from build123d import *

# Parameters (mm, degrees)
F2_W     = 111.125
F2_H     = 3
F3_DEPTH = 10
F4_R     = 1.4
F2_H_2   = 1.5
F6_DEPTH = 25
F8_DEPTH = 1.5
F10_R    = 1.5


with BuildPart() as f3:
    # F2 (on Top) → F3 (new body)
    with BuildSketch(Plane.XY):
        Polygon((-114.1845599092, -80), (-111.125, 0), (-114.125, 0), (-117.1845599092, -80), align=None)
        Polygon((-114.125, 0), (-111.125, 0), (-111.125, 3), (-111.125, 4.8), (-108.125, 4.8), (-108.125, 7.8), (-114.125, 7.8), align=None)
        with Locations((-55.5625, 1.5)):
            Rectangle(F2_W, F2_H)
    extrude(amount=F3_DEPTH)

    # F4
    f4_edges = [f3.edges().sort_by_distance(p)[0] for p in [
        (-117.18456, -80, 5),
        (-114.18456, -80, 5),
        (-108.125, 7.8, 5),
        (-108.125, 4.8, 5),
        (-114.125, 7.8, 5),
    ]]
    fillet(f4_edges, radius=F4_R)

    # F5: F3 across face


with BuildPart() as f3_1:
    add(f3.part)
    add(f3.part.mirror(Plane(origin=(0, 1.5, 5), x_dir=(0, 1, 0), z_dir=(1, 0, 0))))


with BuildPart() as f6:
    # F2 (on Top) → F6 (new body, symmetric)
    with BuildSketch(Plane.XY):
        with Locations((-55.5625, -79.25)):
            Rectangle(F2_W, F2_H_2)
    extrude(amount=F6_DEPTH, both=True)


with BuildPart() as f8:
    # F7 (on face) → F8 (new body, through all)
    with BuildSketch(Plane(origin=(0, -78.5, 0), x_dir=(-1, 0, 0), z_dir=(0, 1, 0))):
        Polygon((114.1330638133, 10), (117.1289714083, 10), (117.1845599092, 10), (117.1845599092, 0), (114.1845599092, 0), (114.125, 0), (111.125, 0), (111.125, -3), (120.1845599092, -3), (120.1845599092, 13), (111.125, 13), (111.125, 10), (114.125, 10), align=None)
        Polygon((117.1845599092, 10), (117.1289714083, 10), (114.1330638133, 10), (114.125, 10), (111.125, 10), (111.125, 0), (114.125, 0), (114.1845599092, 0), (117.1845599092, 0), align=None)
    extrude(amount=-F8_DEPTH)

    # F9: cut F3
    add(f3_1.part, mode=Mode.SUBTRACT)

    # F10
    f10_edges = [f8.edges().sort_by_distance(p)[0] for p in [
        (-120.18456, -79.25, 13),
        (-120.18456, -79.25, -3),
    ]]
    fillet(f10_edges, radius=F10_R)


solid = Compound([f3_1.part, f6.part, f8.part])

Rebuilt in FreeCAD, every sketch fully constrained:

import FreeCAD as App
import Part
import Sketcher
from FreeCAD import Vector


def edges_at(feature, points):
    """Names of the edges that pass closest to the given points."""
    edges = feature.Shape.Edges
    near = lambda p: min(range(len(edges)), key=lambda i: edges[i].distToShape(Part.Vertex(*p))[0])
    return sorted({f"Edge{near(p) + 1}" for p in points})

doc = App.newDocument("Part")
params = doc.addObject("Spreadsheet::Sheet", "Params")
for row, (alias, value) in enumerate([
    ("sketch1_width", "3 mm"),
    ("sketch1_height", "1.8 mm"),
    ("pad1_length", "10 mm"),
    ("fillet_radius", "1.4 mm"),
    ("sketch2_height", "1.5 mm"),
    ("pad2_length", "50 mm"),
    ("sketch3_height", "16 mm"),
    ("pad3_length", "1.5 mm"),
    ("fillet2_radius", "1.5 mm"),
], start=1):
    params.set(f"A{row}", alias)
    params.set(f"B{row}", "=" + value)
    params.setAlias(f"B{row}", alias)

body = doc.addObject("PartDesign::Body", "Body")

sketch1 = body.newObject("Sketcher::SketchObject", "Sketch")
sketch1.AttachmentSupport = (doc.getObject("XY_Plane"), [""])
sketch1.MapMode = "FlatFace"
sketch1.addGeometry(Part.LineSegment(Vector(-114.2, -80, 0), Vector(-111.1, 0, 0)), False)
sketch1.addGeometry(Part.LineSegment(Vector(-111.1, 0, 0), Vector(0, 0, 0)), False)
sketch1.addGeometry(Part.LineSegment(Vector(0, 0, 0), Vector(0, 3, 0)), False)
sketch1.addGeometry(Part.LineSegment(Vector(0, 3, 0), Vector(-111.1, 3, 0)), False)
sketch1.addGeometry(Part.LineSegment(Vector(-111.1, 3, 0), Vector(-111.1, 4.8, 0)), False)
sketch1.addGeometry(Part.LineSegment(Vector(-111.1, 4.8, 0), Vector(-108.1, 4.8, 0)), False)
sketch1.addGeometry(Part.LineSegment(Vector(-108.1, 4.8, 0), Vector(-108.1, 7.8, 0)), False)
sketch1.addGeometry(Part.LineSegment(Vector(-108.1, 7.8, 0), Vector(-114.1, 7.8, 0)), False)
sketch1.addGeometry(Part.LineSegment(Vector(-114.1, 7.8, 0), Vector(-114.1, 0, 0)), False)
sketch1.addGeometry(Part.LineSegment(Vector(-114.1, 0, 0), Vector(-117.2, -80, 0)), False)
sketch1.addGeometry(Part.LineSegment(Vector(-117.2, -80, 0), Vector(-114.2, -80, 0)), False)
sketch1.addConstraint(Sketcher.Constraint("Coincident", 0, 2, 1, 1))
sketch1.addConstraint(Sketcher.Constraint("Coincident", 1, 2, 2, 1))
sketch1.addConstraint(Sketcher.Constraint("Coincident", 2, 2, 3, 1))
sketch1.addConstraint(Sketcher.Constraint("Coincident", 3, 2, 4, 1))
sketch1.addConstraint(Sketcher.Constraint("Coincident", 4, 2, 5, 1))
sketch1.addConstraint(Sketcher.Constraint("Coincident", 5, 2, 6, 1))
sketch1.addConstraint(Sketcher.Constraint("Coincident", 6, 2, 7, 1))
sketch1.addConstraint(Sketcher.Constraint("Coincident", 7, 2, 8, 1))
sketch1.addConstraint(Sketcher.Constraint("Coincident", 8, 2, 9, 1))
sketch1.addConstraint(Sketcher.Constraint("Coincident", 9, 2, 10, 1))
sketch1.addConstraint(Sketcher.Constraint("Coincident", 10, 2, 0, 1))
sketch1.addConstraint(Sketcher.Constraint("Horizontal", 1))
sketch1.addConstraint(Sketcher.Constraint("Vertical", 2))
sketch1.addConstraint(Sketcher.Constraint("Horizontal", 3))
sketch1.addConstraint(Sketcher.Constraint("Vertical", 4))
sketch1.addConstraint(Sketcher.Constraint("Horizontal", 5))
sketch1.addConstraint(Sketcher.Constraint("Vertical", 6))
sketch1.addConstraint(Sketcher.Constraint("Horizontal", 7))
sketch1.addConstraint(Sketcher.Constraint("Vertical", 8))
sketch1.addConstraint(Sketcher.Constraint("Horizontal", 10))
sketch1.addConstraint(Sketcher.Constraint("Coincident", 1, 2, -1, 1))
sketch1.addConstraint(Sketcher.Constraint("PointOnObject", 8, 2, -1))
sketch1.addConstraint(Sketcher.Constraint("Parallel", 0, 9))
sketch1.addConstraint(Sketcher.Constraint("Vertical", 0, 2, 3, 2))
sketch1.addConstraint(Sketcher.Constraint("Equal", 5, 10))
sketch1.addConstraint(Sketcher.Constraint("Equal", 10, 2))
sketch1.addConstraint(Sketcher.Constraint("Equal", 2, 6))
sketch1.addConstraint(Sketcher.Constraint("DistanceX", 5, 1, 5, 2, 3.0))
sketch1.addConstraint(Sketcher.Constraint("DistanceY", 4, 1, 4, 2, 1.8))
sketch1.addConstraint(Sketcher.Constraint("DistanceY", 9, 2, -1, 1, 80.0))
sketch1.addConstraint(Sketcher.Constraint("DistanceX", 1, 1, 1, 2, 111.125))
sketch1.addConstraint(Sketcher.Constraint("DistanceX", 9, 2, -1, 1, 117.18456))
sketch1.setExpression("Constraints[27]", "Params.sketch1_width")
sketch1.setExpression("Constraints[28]", "Params.sketch1_height")
pad1 = body.newObject("PartDesign::Pad", "Pad")
pad1.Profile = sketch1
pad1.setExpression("Length", "Params.pad1_length")
doc.recompute()

fillet = body.newObject("PartDesign::Fillet", "Fillet")
fillet.Base = (pad1, edges_at(pad1, [
    (-117.185, -80, 5),
    (-114.185, -80, 5),
    (-108.125, 7.8, 5),
    (-108.125, 4.8, 5),
    (-114.125, 7.8, 5),
]))
fillet.setExpression("Radius", "Params.fillet_radius")
body2 = doc.addObject("PartDesign::Body", "Body001")
doc.recompute()

body2.BaseFeature = body
doc.recompute()

mirroring = doc.addObject("Part::Mirroring", "Mirroring")
mirroring.Source = body
mirroring.Base = Vector(0, 1.5, 5)
mirroring.Normal = Vector(1, 0, 0)
body3 = doc.addObject("PartDesign::Body", "Body002")
body3.BaseFeature = mirroring
boolean = body2.newObject("PartDesign::Boolean", "Boolean")
boolean.Type = "Fuse"
boolean.addObjects([body3])
doc.recompute()
body4 = doc.addObject("PartDesign::Body", "Body003")

sketch2 = body4.newObject("Sketcher::SketchObject", "Sketch001")
sketch2.AttachmentSupport = (doc.getObject("XY_Plane003"), [""])
sketch2.MapMode = "FlatFace"
sketch2.addGeometry(Part.LineSegment(Vector(-111.1, -78.5, 0), Vector(-111.1, -80, 0)), False)
sketch2.addGeometry(Part.LineSegment(Vector(-111.1, -80, 0), Vector(0, -80, 0)), False)
sketch2.addGeometry(Part.LineSegment(Vector(0, -80, 0), Vector(0, -78.5, 0)), False)
sketch2.addGeometry(Part.LineSegment(Vector(0, -78.5, 0), Vector(-111.1, -78.5, 0)), False)
sketch2.addConstraint(Sketcher.Constraint("Coincident", 0, 2, 1, 1))
sketch2.addConstraint(Sketcher.Constraint("Coincident", 1, 2, 2, 1))
sketch2.addConstraint(Sketcher.Constraint("Coincident", 2, 2, 3, 1))
sketch2.addConstraint(Sketcher.Constraint("Coincident", 3, 2, 0, 1))
sketch2.addConstraint(Sketcher.Constraint("Vertical", 0))
sketch2.addConstraint(Sketcher.Constraint("Horizontal", 1))
sketch2.addConstraint(Sketcher.Constraint("Vertical", 2))
sketch2.addConstraint(Sketcher.Constraint("Horizontal", 3))
sketch2.addConstraint(Sketcher.Constraint("PointOnObject", 1, 2, -2))
sketch2.addConstraint(Sketcher.Constraint("DistanceY", 0, 2, 0, 1, 1.5))
sketch2.addConstraint(Sketcher.Constraint("DistanceY", 0, 2, -1, 1, 80.0))
sketch2.addConstraint(Sketcher.Constraint("DistanceX", 1, 1, 1, 2, 111.125))
sketch2.setExpression("Constraints[9]", "Params.sketch2_height")
pad2 = body4.newObject("PartDesign::Pad", "Pad001")
pad2.Profile = sketch2
pad2.setExpression("Length", "Params.pad2_length")
pad2.Midplane = True
body5 = doc.addObject("PartDesign::Body", "Body004")

sketch3 = body5.newObject("Sketcher::SketchObject", "Sketch002")
sketch3.AttachmentSupport = (doc.getObject("XZ_Plane004"), [""])
sketch3.MapMode = "FlatFace"
sketch3.AttachmentOffset = App.Placement(Vector(0, 0, 78.5), App.Rotation())
sketch3.addGeometry(Part.LineSegment(Vector(-111, -3, 0), Vector(-120, -3, 0)), False)
sketch3.addGeometry(Part.LineSegment(Vector(-120, -3, 0), Vector(-120, 13, 0)), False)
sketch3.addGeometry(Part.LineSegment(Vector(-120, 13, 0), Vector(-111, 13, 0)), False)
sketch3.addGeometry(Part.LineSegment(Vector(-111, 13, 0), Vector(-111, -3, 0)), False)
sketch3.addConstraint(Sketcher.Constraint("Coincident", 0, 2, 1, 1))
sketch3.addConstraint(Sketcher.Constraint("Coincident", 1, 2, 2, 1))
sketch3.addConstraint(Sketcher.Constraint("Coincident", 2, 2, 3, 1))
sketch3.addConstraint(Sketcher.Constraint("Coincident", 3, 2, 0, 1))
sketch3.addConstraint(Sketcher.Constraint("Horizontal", 0))
sketch3.addConstraint(Sketcher.Constraint("Vertical", 1))
sketch3.addConstraint(Sketcher.Constraint("Horizontal", 2))
sketch3.addConstraint(Sketcher.Constraint("Vertical", 3))
sketch3.addConstraint(Sketcher.Constraint("DistanceY", 1, 1, 1, 2, 16.0))
sketch3.addConstraint(Sketcher.Constraint("DistanceY", 0, 2, -1, 1, 3.0))
sketch3.addConstraint(Sketcher.Constraint("DistanceX", 2, 2, -1, 1, 111.125))
sketch3.addConstraint(Sketcher.Constraint("DistanceX", 0, 2, 0, 1, 9.05956))
sketch3.setExpression("Constraints[8]", "Params.sketch3_height")
pad3 = body5.newObject("PartDesign::Pad", "Pad002")
pad3.Profile = sketch3
pad3.setExpression("Length", "Params.pad3_length")
doc.recompute()

body6 = doc.addObject("PartDesign::Body", "Body005")
body6.BaseFeature = body2
boolean2 = body5.newObject("PartDesign::Boolean", "Boolean001")
boolean2.Type = "Cut"
boolean2.addObjects([body6])
doc.recompute()

fillet2 = body5.newObject("PartDesign::Fillet", "Fillet001")
fillet2.Base = (boolean2, edges_at(boolean2, [(-120.185, -79.25, 13), (-120.185, -79.25, -3)]))
fillet2.setExpression("Radius", "Params.fillet2_radius")

doc.recompute()
